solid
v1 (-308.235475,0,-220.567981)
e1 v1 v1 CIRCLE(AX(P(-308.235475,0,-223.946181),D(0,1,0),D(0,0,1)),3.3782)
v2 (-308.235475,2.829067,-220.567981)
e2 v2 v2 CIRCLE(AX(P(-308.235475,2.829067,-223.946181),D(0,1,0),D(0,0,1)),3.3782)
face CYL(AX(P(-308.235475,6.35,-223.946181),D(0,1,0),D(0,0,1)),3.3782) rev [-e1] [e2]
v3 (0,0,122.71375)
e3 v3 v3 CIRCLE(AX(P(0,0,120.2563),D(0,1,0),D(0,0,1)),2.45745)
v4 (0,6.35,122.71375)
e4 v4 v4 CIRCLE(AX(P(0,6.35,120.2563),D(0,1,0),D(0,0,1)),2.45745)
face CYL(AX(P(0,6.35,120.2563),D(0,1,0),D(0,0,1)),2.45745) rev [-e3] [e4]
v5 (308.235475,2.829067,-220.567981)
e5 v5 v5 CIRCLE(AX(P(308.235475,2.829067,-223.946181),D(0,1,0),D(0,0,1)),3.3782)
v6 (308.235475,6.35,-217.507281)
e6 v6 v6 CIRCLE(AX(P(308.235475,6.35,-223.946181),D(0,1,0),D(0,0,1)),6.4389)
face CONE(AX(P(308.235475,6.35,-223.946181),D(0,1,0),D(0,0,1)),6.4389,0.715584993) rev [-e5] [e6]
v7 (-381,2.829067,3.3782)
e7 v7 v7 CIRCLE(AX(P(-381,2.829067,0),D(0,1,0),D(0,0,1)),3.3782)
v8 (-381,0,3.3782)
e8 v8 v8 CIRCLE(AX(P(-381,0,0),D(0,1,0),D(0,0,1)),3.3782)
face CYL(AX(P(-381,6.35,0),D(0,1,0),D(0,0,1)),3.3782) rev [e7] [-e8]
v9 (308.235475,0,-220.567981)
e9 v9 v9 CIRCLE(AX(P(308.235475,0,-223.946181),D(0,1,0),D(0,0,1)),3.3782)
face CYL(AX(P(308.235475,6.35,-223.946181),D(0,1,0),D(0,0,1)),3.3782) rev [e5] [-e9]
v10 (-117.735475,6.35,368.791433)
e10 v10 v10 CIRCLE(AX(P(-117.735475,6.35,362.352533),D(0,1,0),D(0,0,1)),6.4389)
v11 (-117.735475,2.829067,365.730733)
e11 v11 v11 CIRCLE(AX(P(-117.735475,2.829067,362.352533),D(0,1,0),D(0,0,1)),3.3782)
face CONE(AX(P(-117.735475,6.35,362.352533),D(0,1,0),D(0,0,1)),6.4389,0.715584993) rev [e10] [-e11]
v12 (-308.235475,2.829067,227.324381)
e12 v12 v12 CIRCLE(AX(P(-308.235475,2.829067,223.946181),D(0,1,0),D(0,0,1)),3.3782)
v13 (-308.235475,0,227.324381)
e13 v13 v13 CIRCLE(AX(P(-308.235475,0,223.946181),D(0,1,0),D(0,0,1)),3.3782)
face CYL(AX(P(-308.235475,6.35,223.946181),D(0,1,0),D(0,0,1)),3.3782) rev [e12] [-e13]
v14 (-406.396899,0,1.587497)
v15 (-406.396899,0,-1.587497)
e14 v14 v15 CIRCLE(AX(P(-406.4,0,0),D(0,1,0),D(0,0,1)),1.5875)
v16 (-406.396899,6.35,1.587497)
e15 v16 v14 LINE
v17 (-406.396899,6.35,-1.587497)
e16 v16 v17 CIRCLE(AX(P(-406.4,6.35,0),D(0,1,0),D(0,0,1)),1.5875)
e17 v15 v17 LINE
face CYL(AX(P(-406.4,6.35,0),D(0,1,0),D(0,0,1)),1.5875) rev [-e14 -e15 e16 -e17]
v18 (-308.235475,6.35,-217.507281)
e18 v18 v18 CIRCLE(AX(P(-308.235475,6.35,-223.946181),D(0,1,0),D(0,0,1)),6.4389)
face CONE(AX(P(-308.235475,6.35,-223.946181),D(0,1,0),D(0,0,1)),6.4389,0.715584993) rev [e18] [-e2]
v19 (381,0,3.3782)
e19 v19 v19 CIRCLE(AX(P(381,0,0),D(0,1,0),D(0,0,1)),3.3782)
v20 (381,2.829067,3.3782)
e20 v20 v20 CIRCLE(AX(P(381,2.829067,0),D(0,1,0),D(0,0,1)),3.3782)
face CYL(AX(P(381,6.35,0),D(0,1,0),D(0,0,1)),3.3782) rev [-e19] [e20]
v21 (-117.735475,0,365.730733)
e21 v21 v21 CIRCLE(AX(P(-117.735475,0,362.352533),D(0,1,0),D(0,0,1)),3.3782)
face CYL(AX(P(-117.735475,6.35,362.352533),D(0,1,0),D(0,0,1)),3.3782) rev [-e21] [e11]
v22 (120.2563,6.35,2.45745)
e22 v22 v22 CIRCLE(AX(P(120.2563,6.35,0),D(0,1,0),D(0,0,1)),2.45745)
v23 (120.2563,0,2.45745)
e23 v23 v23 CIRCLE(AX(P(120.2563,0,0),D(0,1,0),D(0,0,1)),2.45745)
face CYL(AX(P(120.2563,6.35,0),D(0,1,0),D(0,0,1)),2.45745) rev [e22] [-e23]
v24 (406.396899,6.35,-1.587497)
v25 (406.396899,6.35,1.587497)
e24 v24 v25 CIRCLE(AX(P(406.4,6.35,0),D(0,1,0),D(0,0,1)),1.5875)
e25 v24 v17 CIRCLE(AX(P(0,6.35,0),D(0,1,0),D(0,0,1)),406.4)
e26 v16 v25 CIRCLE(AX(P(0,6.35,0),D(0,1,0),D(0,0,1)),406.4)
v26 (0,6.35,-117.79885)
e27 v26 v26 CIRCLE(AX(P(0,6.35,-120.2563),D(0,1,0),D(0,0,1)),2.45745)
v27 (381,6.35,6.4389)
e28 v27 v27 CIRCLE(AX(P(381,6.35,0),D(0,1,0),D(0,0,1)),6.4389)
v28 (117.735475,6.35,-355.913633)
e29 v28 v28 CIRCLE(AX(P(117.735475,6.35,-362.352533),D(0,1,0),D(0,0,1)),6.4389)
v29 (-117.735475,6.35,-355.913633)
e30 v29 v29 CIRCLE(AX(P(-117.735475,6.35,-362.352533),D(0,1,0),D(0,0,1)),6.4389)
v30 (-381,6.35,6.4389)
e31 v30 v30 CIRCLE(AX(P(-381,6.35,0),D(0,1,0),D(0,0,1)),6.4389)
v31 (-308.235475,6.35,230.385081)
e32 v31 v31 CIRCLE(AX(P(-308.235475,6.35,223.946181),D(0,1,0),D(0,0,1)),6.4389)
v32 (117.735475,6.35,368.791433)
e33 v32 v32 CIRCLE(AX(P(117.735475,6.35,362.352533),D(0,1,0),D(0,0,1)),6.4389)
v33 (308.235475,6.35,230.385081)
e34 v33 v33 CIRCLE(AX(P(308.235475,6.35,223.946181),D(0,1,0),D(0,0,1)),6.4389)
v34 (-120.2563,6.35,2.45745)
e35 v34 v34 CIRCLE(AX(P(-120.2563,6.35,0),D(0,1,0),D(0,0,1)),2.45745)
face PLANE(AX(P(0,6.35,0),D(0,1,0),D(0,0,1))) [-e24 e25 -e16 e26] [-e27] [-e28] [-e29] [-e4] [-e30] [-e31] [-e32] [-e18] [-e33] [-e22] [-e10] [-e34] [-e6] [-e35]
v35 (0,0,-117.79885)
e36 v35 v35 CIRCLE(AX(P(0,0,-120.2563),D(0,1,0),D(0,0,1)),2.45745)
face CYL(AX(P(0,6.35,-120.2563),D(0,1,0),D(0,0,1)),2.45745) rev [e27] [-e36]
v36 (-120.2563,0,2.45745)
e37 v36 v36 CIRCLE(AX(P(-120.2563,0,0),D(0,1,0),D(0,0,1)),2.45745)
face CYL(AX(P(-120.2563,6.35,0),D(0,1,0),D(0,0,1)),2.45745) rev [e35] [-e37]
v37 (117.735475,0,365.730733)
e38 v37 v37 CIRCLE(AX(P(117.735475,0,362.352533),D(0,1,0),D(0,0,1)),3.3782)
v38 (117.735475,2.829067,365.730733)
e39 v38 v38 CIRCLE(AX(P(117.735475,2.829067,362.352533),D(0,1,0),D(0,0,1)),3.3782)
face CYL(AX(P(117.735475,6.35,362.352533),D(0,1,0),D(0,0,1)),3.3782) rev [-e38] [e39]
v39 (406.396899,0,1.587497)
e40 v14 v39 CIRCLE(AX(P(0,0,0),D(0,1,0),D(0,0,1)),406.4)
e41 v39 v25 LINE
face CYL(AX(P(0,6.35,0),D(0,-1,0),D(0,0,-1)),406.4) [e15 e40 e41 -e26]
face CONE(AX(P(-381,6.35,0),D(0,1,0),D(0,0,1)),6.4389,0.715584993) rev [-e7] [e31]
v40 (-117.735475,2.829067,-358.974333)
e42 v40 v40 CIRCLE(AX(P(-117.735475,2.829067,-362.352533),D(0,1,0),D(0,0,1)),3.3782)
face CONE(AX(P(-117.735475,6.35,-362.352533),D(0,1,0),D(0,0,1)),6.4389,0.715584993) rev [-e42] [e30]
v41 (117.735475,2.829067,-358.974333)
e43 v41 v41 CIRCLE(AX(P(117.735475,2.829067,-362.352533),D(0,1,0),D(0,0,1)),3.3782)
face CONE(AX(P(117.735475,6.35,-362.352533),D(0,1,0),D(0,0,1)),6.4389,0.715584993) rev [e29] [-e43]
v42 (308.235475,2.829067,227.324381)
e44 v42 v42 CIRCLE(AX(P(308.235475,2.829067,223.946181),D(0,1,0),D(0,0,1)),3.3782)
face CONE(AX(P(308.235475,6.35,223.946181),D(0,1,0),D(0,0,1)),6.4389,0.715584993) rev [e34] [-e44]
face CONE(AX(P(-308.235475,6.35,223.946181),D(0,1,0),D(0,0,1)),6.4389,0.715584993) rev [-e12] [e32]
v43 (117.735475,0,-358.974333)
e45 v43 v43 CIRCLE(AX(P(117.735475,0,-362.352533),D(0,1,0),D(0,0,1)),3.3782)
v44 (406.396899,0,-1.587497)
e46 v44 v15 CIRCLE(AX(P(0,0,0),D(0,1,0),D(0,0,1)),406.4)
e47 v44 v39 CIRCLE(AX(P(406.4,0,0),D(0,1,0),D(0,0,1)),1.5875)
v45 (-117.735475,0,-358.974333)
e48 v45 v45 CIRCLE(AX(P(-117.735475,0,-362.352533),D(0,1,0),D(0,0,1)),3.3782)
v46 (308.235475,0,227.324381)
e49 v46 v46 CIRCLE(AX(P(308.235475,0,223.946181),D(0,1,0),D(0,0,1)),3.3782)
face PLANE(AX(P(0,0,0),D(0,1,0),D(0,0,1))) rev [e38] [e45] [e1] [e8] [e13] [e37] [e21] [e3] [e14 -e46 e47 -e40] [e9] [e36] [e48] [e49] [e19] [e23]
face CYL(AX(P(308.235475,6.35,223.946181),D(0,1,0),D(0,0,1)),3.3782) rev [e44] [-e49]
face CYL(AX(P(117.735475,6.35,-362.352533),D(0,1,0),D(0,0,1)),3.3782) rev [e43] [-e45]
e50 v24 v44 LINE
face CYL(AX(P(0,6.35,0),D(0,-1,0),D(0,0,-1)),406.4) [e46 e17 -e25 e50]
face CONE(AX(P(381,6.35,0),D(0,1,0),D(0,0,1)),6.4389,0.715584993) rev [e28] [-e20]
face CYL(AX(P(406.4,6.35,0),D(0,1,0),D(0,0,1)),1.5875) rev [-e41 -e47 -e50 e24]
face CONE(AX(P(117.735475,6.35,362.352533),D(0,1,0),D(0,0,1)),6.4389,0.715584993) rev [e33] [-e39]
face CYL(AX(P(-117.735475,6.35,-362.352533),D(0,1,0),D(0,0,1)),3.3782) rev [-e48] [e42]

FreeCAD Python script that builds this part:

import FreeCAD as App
import Part
import Sketcher

V = App.Vector
Q = App.Units.Quantity


def add_polygon(sketch, points):
    """Adds a closed chain of lines whose ends are joined by coincident constraints."""
    first, n = sketch.GeometryCount, len(points)
    for a, b in zip(points, points[1:] + points[:1]):
        sketch.addGeometry(Part.LineSegment(App.Vector(*a, 0), App.Vector(*b, 0)), False)
    for i in range(n):
        sketch.addConstraint(Sketcher.Constraint("Coincident", first + i, 2, first + (i + 1) % n, 1))

doc = App.newDocument("Part")
body = doc.addObject("PartDesign::Body", "Body")

sketch1 = body.newObject("Sketcher::SketchObject", "Sketch")
sketch1.AttachmentSupport = (doc.getObject("XZ_Plane"), [""])
sketch1.MapMode = "FlatFace"
sketch1.addGeometry(Part.Circle(V(0, 0, 0), V(0, 0, 1), 406.4), False)
sketch1.addConstraint(Sketcher.Constraint("Coincident", 0, 3, -1, 1))
sketch1.addConstraint(Sketcher.Constraint("Diameter", 0, Q("32 in")))
pad1 = body.newObject("PartDesign::Pad", "Pad")
pad1.Profile = sketch1
pad1.Length = Q("0.25 in")
pad1.Reversed = True

sketch2 = body.newObject("Sketcher::SketchObject", "Sketch001")
sketch2.AttachmentSupport = (doc.getObject("YZ_Plane"), [""])
sketch2.MapMode = "FlatFace"
sketch2.AttachmentOffset = App.Placement(V(0, 0, -117.735475), App.Rotation())
add_polygon(sketch2, [(0, -362.352533), (6.35, -362.352533), (6.35, -355.913633), (2.829067, -358.974333), (0, -358.974333)])
sketch2.addGeometry(Part.LineSegment(V(6.35, -362.352533, 0), V(0, -362.352533, 0)), True)
sketch2.addConstraint(Sketcher.Constraint("Horizontal", 0))
sketch2.addConstraint(Sketcher.Constraint("Vertical", 1))
sketch2.addConstraint(Sketcher.Constraint("Horizontal", 3))
sketch2.addConstraint(Sketcher.Constraint("Vertical", 4))
sketch2.addConstraint(Sketcher.Constraint("Horizontal", 5))
sketch2.addConstraint(Sketcher.Constraint("Coincident", 5, 1, 0, 2))
sketch2.addConstraint(Sketcher.Constraint("PointOnObject", 3, 2, -2))
sketch2.addConstraint(Sketcher.Constraint("PointOnObject", 5, 2, -2))
sketch2.addConstraint(Sketcher.Constraint("Angle", 2, Q("-139 deg")))
sketch2.addConstraint(Sketcher.Constraint("DistanceX", 0, 1, 0, 2, Q("0.25 in")))
sketch2.addConstraint(Sketcher.Constraint("DistanceY", 4, 2, 4, 1, Q("0.133 in")))
sketch2.addConstraint(Sketcher.Constraint("DistanceY", 1, 1, 1, 2, Q("0.2535 in")))
sketch2.addConstraint(Sketcher.Constraint("DistanceY", 0, 2, -1, 1, Q("362.352533 mm")))
groove = body.newObject("PartDesign::Groove", "Groove")
groove.Profile = sketch2
groove.ReferenceAxis = (sketch2, ["Axis0"])
groove.Angle = 360
doc.recompute()

linearpattern = body.newObject("PartDesign::LinearPattern", "LinearPattern")
linearpattern.Originals = [groove]
linearpattern.Direction = (doc.getObject("X_Axis"), [""])
linearpattern.Mode = "offset"
linearpattern.Offset = 235.47095
linearpattern.Occurrences = 2
body.Tip = linearpattern
doc.recompute()

datumline = body.newObject("PartDesign::Line", "DatumLine")
datumline.Placement = App.Placement(V(0, 0, 0), App.Rotation(V(0, 0, 1), V(0.951056516, 0, 0.309016994)))
linearpattern2 = body.newObject("PartDesign::LinearPattern", "LinearPattern001")
linearpattern2.Originals = [groove]
linearpattern2.Direction = (datumline, [""])
linearpattern2.Mode = "offset"
linearpattern2.Offset = 447.892362
linearpattern2.Occurrences = 2
body.Tip = linearpattern2
doc.recompute()

datumline2 = body.newObject("PartDesign::Line", "DatumLine001")
datumline2.Placement = App.Placement(V(0, 0, 0), App.Rotation(V(0, 0, 1), V(0.809016994, 0, 0.587785252)))
linearpattern3 = body.newObject("PartDesign::LinearPattern", "LinearPattern002")
linearpattern3.Originals = [groove]
linearpattern3.Direction = (datumline2, [""])
linearpattern3.Mode = "offset"
linearpattern3.Offset = 616.470949
linearpattern3.Occurrences = 2
body.Tip = linearpattern3
doc.recompute()

datumline3 = body.newObject("PartDesign::Line", "DatumLine002")
datumline3.Placement = App.Placement(V(0, 0, 0), App.Rotation(V(0, 0, 1), V(0.587785252, 0, 0.809016994)))
linearpattern4 = body.newObject("PartDesign::LinearPattern", "LinearPattern003")
linearpattern4.Originals = [groove]
linearpattern4.Direction = (datumline3, [""])
linearpattern4.Mode = "offset"
linearpattern4.Offset = 724.705065
linearpattern4.Occurrences = 2
body.Tip = linearpattern4
doc.recompute()

datumline4 = body.newObject("PartDesign::Line", "DatumLine003")
datumline4.Placement = App.Placement(V(0, 0, 0), App.Rotation(V(0, 0, 1), V(0.309016994, 0, 0.951056516)))
linearpattern5 = body.newObject("PartDesign::LinearPattern", "LinearPattern004")
linearpattern5.Originals = [groove]
linearpattern5.Direction = (datumline4, [""])
linearpattern5.Mode = "offset"
linearpattern5.Offset = Q("30 in")
linearpattern5.Occurrences = 2
body.Tip = linearpattern5
doc.recompute()

linearpattern6 = body.newObject("PartDesign::LinearPattern", "LinearPattern005")
linearpattern6.Originals = [groove]
linearpattern6.Direction = (doc.getObject("Z_Axis"), [""])
linearpattern6.Mode = "offset"
linearpattern6.Offset = 724.705065
linearpattern6.Occurrences = 2
body.Tip = linearpattern6
doc.recompute()

datumline5 = body.newObject("PartDesign::Line", "DatumLine004")
datumline5.Placement = App.Placement(V(0, 0, 0), App.Rotation(V(0, 0, 1), V(-0.309016994, 0, 0.951056516)))
linearpattern7 = body.newObject("PartDesign::LinearPattern", "LinearPattern006")
linearpattern7.Originals = [groove]
linearpattern7.Direction = (datumline5, [""])
linearpattern7.Mode = "offset"
linearpattern7.Offset = 616.470949
linearpattern7.Occurrences = 2
body.Tip = linearpattern7
doc.recompute()

datumline6 = body.newObject("PartDesign::Line", "DatumLine005")
datumline6.Placement = App.Placement(V(0, 0, 0), App.Rotation(V(0, 0, 1), V(-0.587785252, 0, 0.809016994)))
linearpattern8 = body.newObject("PartDesign::LinearPattern", "LinearPattern007")
linearpattern8.Originals = [groove]
linearpattern8.Direction = (datumline6, [""])
linearpattern8.Mode = "offset"
linearpattern8.Offset = 447.892362
linearpattern8.Occurrences = 2
body.Tip = linearpattern8
doc.recompute()

datumline7 = body.newObject("PartDesign::Line", "DatumLine006")
datumline7.Placement = App.Placement(V(0, 0, 0), App.Rotation(V(0, 0, 1), V(-0.809016994, 0, 0.587785252)))
linearpattern9 = body.newObject("PartDesign::LinearPattern", "LinearPattern008")
linearpattern9.Originals = [groove]
linearpattern9.Direction = (datumline7, [""])
linearpattern9.Mode = "offset"
linearpattern9.Offset = 235.47095
linearpattern9.Occurrences = 2
body.Tip = linearpattern9

sketch3 = body.newObject("Sketcher::SketchObject", "Sketch002")
sketch3.AttachmentSupport = (doc.getObject("XZ_Plane"), [""])
sketch3.MapMode = "FlatFace"
sketch3.AttachmentOffset = App.Placement(V(0, 0, -0.25 * 25.4), App.Rotation())
sketch3.addGeometry(Part.Circle(V(0, 120.2563, 0), V(0, 0, 1), 2.45745), False)
sketch3.addGeometry(Part.Circle(V(120.2563, 0, 0), V(0, 0, 1), 2.45745), False)
sketch3.addGeometry(Part.Circle(V(0, -120.2563, 0), V(0, 0, 1), 2.45745), False)
sketch3.addGeometry(Part.Circle(V(-120.2563, 0, 0), V(0, 0, 1), 2.45745), False)
sketch3.addConstraint(Sketcher.Constraint("Equal", 0, 1))
sketch3.addConstraint(Sketcher.Constraint("Equal", 1, 2))
sketch3.addConstraint(Sketcher.Constraint("Equal", 2, 3))
sketch3.addConstraint(Sketcher.Constraint("Symmetric", 0, 3, 2, 3, -1, 1))
sketch3.addConstraint(Sketcher.Constraint("Symmetric", 1, 3, 3, 3, -1, 1))
sketch3.addConstraint(Sketcher.Constraint("PointOnObject", 0, 3, -2))
sketch3.addConstraint(Sketcher.Constraint("PointOnObject", 1, 3, -1))
sketch3.addConstraint(Sketcher.Constraint("Diameter", 0, Q("0.1935 in")))
sketch3.addConstraint(Sketcher.Constraint("DistanceY", 2, 3, 0, 3, Q("9.469 in")))
sketch3.addConstraint(Sketcher.Constraint("DistanceX", 3, 3, 1, 3, Q("9.469 in")))
doc.recompute()
hole = body.newObject("PartDesign::Hole", "Hole")
hole.Profile = sketch3
hole.ThreadType = "None"
hole.Diameter = Q("0.1935 in")
hole.DepthType = "ThroughAll"
hole.Reversed = True

sketch4 = body.newObject("Sketcher::SketchObject", "Sketch003")
sketch4.AttachmentSupport = (doc.getObject("XZ_Plane"), [""])
sketch4.MapMode = "FlatFace"
sketch4.AttachmentOffset = App.Placement(V(0, 0, -0.25 * 25.4), App.Rotation())
sketch4.addGeometry(Part.Circle(V(-406.4, 0, 0), V(0, 0, 1), 1.5875), False)
sketch4.addGeometry(Part.Circle(V(406.4, 0, 0), V(0, 0, 1), 1.5875), False)
sketch4.addConstraint(Sketcher.Constraint("Equal", 0, 1))
sketch4.addConstraint(Sketcher.Constraint("Symmetric", 0, 3, 1, 3, -1, 1))
sketch4.addConstraint(Sketcher.Constraint("PointOnObject", 0, 3, -1))
sketch4.addConstraint(Sketcher.Constraint("Diameter", 0, Q("0.125 in")))
sketch4.addConstraint(Sketcher.Constraint("DistanceX", 0, 3, -1, 1, Q("16 in")))
doc.recompute()
hole2 = body.newObject("PartDesign::Hole", "Hole001")
hole2.Profile = sketch4
hole2.ThreadType = "None"
hole2.Diameter = Q("0.125 in")
hole2.DepthType = "ThroughAll"
hole2.Reversed = True

doc.recompute()
